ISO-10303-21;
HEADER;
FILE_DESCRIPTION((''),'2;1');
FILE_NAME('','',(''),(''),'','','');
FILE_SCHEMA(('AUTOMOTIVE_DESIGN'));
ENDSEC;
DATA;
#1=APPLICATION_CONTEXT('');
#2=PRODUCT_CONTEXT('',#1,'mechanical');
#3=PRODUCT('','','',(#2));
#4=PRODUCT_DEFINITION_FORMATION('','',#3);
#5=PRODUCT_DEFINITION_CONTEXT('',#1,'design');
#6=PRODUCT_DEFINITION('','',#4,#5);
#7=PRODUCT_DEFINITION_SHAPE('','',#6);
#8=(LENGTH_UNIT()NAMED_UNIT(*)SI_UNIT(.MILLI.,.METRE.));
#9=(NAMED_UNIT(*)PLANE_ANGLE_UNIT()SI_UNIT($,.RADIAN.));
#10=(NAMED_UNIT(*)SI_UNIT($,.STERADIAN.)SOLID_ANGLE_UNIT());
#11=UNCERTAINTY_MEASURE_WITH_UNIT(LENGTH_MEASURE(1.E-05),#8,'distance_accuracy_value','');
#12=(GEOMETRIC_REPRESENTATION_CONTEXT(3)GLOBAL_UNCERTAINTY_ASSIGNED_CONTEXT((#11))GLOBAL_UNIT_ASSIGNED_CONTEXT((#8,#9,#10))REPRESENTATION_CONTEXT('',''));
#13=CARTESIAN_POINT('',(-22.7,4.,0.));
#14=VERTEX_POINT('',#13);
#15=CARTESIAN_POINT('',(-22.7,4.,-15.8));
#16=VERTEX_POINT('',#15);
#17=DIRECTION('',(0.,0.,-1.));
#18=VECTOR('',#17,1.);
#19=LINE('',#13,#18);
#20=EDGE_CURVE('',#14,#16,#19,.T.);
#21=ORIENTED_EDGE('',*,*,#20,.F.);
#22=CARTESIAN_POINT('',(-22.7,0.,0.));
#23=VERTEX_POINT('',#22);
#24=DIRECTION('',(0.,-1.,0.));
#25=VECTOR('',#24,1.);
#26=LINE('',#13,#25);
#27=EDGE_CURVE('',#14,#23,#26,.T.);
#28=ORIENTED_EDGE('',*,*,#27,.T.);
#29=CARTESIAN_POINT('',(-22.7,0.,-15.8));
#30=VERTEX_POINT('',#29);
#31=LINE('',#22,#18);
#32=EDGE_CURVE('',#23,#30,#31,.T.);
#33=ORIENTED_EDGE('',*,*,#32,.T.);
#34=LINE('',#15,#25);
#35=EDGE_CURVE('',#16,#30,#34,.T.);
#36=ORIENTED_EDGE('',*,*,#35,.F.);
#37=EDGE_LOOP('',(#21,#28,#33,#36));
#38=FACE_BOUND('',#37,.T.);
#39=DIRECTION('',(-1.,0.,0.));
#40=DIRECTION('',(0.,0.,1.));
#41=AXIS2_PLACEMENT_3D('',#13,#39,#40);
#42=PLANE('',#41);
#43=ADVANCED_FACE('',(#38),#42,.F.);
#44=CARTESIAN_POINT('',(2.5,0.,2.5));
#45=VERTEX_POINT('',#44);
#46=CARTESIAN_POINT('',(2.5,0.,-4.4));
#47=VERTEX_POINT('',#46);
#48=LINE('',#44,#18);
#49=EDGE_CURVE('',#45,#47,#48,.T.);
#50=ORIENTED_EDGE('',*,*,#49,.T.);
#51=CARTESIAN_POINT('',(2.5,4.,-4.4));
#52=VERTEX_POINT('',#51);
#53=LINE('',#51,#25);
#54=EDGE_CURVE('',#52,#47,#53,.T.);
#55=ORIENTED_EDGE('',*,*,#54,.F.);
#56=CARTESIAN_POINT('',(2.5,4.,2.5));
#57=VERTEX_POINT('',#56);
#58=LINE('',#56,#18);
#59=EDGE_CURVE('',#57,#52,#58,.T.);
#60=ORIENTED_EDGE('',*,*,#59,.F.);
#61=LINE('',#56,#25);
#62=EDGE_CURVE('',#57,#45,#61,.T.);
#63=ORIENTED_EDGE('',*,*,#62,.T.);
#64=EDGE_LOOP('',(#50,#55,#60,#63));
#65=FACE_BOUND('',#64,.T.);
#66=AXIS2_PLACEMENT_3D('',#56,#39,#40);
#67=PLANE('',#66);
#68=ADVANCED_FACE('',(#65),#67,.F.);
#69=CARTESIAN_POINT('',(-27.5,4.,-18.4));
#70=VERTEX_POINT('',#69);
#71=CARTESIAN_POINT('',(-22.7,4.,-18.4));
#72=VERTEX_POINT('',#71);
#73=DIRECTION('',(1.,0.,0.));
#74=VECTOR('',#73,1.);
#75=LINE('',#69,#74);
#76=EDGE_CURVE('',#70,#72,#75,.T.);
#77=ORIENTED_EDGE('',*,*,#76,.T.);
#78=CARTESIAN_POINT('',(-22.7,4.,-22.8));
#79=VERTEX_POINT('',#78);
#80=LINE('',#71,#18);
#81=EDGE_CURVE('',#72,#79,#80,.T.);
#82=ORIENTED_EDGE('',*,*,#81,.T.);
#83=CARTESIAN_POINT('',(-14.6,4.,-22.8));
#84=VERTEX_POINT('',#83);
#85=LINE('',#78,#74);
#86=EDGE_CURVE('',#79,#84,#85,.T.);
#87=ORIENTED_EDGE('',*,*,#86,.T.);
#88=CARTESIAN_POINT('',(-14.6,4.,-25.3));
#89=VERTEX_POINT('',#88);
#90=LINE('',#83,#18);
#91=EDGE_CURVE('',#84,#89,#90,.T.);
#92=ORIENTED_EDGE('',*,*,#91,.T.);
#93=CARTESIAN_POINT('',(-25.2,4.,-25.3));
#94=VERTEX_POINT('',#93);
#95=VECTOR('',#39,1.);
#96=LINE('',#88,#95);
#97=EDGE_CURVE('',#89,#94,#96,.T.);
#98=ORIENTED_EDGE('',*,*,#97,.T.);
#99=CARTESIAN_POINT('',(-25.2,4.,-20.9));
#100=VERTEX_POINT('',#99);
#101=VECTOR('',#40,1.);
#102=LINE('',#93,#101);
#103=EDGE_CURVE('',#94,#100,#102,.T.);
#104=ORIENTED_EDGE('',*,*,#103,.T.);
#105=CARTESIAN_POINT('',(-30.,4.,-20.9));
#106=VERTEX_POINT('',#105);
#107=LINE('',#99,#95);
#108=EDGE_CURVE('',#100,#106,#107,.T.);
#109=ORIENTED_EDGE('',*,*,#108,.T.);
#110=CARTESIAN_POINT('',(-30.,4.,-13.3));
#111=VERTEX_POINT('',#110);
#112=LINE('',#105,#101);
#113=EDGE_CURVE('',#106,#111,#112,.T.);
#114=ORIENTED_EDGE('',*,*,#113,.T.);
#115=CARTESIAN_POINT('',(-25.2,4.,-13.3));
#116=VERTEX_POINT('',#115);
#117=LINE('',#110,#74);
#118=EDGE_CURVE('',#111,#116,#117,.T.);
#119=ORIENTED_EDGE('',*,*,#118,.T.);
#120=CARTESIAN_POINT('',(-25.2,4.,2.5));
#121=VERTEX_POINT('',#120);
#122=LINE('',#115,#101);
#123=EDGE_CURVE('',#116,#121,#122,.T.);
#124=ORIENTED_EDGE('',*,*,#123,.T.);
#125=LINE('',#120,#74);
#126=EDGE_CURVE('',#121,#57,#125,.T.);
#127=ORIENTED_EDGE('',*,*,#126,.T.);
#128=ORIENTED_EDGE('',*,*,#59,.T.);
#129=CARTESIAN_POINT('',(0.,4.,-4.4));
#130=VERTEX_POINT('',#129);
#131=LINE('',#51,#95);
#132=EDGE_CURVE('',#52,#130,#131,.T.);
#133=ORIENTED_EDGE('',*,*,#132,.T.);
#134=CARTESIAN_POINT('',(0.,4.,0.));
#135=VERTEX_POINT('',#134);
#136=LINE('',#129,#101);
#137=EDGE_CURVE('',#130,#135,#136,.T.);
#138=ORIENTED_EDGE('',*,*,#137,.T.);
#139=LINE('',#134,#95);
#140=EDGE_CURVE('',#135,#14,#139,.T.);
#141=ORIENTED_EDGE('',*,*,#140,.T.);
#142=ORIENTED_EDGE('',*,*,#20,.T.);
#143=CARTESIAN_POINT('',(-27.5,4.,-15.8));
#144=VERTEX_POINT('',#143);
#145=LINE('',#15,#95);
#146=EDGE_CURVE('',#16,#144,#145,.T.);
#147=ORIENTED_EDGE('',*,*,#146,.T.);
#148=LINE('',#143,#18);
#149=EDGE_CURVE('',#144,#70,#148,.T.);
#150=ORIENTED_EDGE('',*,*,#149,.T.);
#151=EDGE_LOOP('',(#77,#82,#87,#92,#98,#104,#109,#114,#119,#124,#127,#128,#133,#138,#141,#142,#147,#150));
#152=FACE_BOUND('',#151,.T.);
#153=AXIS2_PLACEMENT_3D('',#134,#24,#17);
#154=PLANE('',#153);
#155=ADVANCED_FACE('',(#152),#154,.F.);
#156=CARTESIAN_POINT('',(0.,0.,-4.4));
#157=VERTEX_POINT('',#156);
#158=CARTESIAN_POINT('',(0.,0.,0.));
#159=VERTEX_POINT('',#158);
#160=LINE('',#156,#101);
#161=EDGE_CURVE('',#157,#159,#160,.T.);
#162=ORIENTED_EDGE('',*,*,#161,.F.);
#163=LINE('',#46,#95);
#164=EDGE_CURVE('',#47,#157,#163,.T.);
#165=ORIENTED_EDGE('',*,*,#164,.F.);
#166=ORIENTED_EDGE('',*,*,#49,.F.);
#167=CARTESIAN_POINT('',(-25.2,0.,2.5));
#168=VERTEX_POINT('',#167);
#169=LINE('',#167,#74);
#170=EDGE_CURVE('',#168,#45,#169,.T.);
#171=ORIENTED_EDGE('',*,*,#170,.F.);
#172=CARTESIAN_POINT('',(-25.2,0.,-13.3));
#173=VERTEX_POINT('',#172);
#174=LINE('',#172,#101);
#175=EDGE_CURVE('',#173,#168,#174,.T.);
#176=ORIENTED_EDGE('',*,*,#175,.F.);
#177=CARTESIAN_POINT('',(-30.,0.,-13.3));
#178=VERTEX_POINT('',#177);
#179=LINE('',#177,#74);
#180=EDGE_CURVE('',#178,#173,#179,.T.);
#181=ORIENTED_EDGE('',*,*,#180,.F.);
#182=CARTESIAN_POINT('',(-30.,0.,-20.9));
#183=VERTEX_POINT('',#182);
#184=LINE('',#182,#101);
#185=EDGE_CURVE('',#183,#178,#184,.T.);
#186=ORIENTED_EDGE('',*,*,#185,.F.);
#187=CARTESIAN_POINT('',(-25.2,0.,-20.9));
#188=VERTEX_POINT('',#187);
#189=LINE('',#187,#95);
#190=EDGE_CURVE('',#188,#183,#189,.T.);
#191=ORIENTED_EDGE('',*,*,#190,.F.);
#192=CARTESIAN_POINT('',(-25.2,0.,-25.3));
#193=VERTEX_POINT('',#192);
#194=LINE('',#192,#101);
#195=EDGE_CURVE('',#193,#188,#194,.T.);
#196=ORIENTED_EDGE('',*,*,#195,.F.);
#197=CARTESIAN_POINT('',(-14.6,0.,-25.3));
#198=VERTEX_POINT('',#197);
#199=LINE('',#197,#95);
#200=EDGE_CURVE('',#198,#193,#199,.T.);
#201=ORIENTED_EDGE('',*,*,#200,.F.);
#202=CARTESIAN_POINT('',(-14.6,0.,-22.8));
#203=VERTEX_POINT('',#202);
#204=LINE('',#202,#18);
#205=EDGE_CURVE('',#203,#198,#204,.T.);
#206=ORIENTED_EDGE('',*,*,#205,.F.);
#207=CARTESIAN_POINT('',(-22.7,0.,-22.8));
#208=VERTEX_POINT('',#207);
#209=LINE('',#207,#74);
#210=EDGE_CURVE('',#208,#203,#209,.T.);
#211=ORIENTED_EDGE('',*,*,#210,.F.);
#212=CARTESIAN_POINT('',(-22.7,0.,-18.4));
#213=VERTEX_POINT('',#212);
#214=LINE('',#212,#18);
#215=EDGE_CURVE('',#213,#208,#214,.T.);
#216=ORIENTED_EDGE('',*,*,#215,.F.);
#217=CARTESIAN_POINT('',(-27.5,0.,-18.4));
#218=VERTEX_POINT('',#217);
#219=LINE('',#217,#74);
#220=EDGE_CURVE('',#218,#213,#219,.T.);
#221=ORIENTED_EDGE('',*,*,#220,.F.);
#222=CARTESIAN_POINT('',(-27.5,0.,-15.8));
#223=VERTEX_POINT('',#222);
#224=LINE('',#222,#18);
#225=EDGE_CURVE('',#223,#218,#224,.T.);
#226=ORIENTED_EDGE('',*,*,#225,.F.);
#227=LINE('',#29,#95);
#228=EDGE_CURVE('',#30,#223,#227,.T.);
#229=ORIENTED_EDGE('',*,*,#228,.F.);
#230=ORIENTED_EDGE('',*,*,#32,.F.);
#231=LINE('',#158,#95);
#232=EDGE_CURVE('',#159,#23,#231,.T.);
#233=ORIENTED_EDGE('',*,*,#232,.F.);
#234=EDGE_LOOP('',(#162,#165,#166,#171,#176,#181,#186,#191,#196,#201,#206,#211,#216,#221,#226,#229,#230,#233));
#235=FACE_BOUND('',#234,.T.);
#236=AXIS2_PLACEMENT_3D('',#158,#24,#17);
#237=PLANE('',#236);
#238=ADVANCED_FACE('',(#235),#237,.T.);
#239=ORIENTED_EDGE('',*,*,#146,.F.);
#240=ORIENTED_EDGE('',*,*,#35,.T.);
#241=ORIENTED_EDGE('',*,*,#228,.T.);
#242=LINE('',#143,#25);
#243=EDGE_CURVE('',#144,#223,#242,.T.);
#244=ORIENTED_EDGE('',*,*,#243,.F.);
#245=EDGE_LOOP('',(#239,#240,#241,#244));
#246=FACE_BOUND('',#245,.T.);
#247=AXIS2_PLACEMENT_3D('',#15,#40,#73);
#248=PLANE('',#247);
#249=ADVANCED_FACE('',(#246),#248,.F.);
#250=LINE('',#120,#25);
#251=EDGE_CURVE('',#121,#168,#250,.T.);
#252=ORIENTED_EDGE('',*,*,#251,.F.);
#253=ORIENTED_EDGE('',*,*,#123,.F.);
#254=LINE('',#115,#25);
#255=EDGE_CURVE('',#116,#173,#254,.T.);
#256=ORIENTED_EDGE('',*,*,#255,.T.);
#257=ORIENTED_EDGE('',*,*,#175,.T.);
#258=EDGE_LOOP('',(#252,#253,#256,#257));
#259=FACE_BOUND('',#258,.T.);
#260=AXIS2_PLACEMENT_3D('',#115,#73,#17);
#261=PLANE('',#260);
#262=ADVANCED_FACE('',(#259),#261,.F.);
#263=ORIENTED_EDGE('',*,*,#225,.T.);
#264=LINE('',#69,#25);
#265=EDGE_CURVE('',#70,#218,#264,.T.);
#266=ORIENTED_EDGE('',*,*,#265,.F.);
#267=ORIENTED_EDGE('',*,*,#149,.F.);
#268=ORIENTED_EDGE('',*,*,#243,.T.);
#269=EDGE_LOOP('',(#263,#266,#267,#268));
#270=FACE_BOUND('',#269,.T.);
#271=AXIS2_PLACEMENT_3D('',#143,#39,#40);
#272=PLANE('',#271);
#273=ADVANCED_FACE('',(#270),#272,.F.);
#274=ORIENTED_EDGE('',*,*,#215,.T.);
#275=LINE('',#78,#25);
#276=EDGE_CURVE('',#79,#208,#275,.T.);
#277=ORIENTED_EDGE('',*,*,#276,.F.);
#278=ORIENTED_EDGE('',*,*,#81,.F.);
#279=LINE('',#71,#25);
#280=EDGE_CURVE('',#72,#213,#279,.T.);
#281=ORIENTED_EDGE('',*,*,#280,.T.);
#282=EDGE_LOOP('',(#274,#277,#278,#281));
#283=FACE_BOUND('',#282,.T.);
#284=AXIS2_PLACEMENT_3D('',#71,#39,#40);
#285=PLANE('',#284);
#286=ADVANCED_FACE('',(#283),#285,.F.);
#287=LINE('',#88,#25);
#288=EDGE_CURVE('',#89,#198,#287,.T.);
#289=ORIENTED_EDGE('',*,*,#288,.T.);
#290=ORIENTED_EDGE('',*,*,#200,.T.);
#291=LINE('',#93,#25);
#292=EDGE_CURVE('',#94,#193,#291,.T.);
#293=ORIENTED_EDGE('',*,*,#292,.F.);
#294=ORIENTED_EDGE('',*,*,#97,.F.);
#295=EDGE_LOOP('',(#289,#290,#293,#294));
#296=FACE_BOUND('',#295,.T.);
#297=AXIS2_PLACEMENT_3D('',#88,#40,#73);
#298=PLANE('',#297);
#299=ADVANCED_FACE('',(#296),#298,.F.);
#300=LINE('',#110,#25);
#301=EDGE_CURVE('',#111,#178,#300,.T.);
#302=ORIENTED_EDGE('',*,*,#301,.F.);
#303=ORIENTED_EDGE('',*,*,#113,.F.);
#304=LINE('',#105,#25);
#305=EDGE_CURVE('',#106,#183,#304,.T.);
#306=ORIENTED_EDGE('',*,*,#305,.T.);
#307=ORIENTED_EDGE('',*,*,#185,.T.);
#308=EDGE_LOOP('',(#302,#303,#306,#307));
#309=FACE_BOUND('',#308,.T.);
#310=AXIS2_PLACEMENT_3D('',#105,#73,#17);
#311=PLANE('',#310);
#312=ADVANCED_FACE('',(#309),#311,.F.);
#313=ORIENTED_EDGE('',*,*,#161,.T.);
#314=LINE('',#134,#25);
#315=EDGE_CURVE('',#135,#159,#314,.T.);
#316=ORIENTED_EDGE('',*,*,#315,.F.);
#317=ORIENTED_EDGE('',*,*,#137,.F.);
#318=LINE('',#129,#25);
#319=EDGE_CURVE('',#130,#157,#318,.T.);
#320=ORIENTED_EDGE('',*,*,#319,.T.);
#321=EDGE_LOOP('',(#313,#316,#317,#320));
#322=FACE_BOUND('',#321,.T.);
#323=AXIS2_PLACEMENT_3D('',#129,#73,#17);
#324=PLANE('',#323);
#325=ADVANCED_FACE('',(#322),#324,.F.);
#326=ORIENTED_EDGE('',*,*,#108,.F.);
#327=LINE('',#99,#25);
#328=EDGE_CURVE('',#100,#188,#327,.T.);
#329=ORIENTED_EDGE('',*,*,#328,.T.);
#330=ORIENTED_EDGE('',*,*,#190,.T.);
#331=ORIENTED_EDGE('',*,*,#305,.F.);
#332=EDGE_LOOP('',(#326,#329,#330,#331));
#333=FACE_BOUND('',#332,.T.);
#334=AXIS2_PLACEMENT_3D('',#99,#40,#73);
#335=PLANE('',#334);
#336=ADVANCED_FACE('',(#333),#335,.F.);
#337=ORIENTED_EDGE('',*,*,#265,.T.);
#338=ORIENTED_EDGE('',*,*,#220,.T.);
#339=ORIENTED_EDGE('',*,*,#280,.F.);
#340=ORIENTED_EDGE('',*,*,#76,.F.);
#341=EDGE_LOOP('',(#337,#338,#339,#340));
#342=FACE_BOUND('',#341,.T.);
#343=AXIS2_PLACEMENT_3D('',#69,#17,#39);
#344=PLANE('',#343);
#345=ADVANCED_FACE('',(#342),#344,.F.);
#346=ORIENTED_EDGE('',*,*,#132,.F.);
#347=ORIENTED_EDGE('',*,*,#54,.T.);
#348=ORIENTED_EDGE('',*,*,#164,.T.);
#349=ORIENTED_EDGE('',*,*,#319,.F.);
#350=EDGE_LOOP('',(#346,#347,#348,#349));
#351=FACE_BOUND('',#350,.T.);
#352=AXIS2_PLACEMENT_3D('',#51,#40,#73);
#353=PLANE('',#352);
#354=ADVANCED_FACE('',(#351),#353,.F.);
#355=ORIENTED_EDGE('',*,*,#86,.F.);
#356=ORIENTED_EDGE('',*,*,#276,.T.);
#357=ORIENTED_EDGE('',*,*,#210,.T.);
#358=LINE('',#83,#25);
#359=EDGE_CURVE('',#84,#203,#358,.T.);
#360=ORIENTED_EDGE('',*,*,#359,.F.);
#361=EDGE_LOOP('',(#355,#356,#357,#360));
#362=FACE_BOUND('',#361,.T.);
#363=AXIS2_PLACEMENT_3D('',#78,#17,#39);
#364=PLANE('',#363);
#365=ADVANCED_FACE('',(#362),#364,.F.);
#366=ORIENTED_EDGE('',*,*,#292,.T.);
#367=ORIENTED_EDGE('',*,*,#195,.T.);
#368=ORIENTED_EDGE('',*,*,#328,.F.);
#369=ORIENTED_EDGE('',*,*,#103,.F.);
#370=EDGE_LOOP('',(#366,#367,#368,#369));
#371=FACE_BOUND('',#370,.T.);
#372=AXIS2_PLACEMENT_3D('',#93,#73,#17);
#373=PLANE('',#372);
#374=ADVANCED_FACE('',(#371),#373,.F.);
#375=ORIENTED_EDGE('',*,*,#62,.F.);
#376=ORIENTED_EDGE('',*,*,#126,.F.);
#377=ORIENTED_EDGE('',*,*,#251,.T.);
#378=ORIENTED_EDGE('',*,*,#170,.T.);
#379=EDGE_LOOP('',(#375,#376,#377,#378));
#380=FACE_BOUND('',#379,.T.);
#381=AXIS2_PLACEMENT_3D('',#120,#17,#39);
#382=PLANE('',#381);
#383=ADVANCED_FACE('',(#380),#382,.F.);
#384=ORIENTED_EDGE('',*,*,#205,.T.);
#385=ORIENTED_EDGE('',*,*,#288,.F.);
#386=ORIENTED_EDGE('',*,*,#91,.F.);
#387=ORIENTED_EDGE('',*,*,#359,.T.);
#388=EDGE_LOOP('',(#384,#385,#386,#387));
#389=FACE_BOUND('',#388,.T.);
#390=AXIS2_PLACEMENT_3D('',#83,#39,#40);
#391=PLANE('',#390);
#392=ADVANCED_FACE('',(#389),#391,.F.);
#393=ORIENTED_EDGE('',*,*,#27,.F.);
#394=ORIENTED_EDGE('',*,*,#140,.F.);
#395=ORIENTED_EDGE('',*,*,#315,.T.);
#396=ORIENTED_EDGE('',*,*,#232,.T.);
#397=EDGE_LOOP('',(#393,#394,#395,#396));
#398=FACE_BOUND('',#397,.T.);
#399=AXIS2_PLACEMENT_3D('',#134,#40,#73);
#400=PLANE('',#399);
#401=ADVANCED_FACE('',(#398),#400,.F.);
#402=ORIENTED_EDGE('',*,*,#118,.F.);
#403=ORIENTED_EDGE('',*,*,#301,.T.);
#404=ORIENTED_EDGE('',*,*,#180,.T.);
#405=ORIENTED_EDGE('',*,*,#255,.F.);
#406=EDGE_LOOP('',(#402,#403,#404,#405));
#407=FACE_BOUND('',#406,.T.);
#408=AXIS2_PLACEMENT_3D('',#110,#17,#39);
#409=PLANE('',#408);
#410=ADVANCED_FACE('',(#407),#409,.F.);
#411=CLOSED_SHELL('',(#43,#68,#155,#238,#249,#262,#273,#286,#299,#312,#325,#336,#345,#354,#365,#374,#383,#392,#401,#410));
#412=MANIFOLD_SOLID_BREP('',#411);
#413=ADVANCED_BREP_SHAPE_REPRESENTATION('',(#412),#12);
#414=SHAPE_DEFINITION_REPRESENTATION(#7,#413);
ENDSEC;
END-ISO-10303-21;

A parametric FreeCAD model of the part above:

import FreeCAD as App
import Part
import Sketcher
from FreeCAD import Vector

doc = App.newDocument("Part")
body = doc.addObject("PartDesign::Body", "Body")

sketch1 = body.newObject("Sketcher::SketchObject", "Sketch")
sketch1.AttachmentSupport = (doc.getObject("XZ_Plane"), [""])
sketch1.MapMode = "FlatFace"
sketch1.addGeometry(Part.LineSegment(Vector(0, 0, 0), Vector(-22.7, 0, 0)), False)
sketch1.addGeometry(Part.LineSegment(Vector(-22.7, 0, 0), Vector(-22.7, -15.8, 0)), False)
sketch1.addGeometry(Part.LineSegment(Vector(-22.7, -15.8, 0), Vector(-27.5, -15.8, 0)), False)
sketch1.addGeometry(Part.LineSegment(Vector(-27.5, -15.8, 0), Vector(-27.5, -18.4, 0)), False)
sketch1.addGeometry(Part.LineSegment(Vector(-27.5, -18.4, 0), Vector(-22.7, -18.4, 0)), False)
sketch1.addGeometry(Part.LineSegment(Vector(-22.7, -18.4, 0), Vector(-22.7, -22.8, 0)), False)
sketch1.addGeometry(Part.LineSegment(Vector(-22.7, -22.8, 0), Vector(-14.6, -22.8, 0)), False)
sketch1.addGeometry(Part.LineSegment(Vector(-14.6, -22.8, 0), Vector(-14.6, -25.3, 0)), False)
sketch1.addGeometry(Part.LineSegment(Vector(-14.6, -25.3, 0), Vector(-25.2, -25.3, 0)), False)
sketch1.addGeometry(Part.LineSegment(Vector(-25.2, -25.3, 0), Vector(-25.2, -20.9, 0)), False)
sketch1.addGeometry(Part.LineSegment(Vector(-25.2, -20.9, 0), Vector(-30, -20.9, 0)), False)
sketch1.addGeometry(Part.LineSegment(Vector(-30, -20.9, 0), Vector(-30, -13.3, 0)), False)
sketch1.addGeometry(Part.LineSegment(Vector(-30, -13.3, 0), Vector(-25.2, -13.3, 0)), False)
sketch1.addGeometry(Part.LineSegment(Vector(-25.2, -13.3, 0), Vector(-25.2, 2.5, 0)), False)
sketch1.addGeometry(Part.LineSegment(Vector(-25.2, 2.5, 0), Vector(2.5, 2.5, 0)), False)
sketch1.addGeometry(Part.LineSegment(Vector(2.5, 2.5, 0), Vector(2.5, -4.4, 0)), False)
sketch1.addGeometry(Part.LineSegment(Vector(2.5, -4.4, 0), Vector(0, -4.4, 0)), False)
sketch1.addGeometry(Part.LineSegment(Vector(0, -4.4, 0), Vector(0, 0, 0)), False)
sketch1.addConstraint(Sketcher.Constraint("Coincident", 0, 2, 1, 1))
sketch1.addConstraint(Sketcher.Constraint("Coincident", 1, 2, 2, 1))
sketch1.addConstraint(Sketcher.Constraint("Coincident", 2, 2, 3, 1))
sketch1.addConstraint(Sketcher.Constraint("Coincident", 3, 2, 4, 1))
sketch1.addConstraint(Sketcher.Constraint("Coincident", 4, 2, 5, 1))
sketch1.addConstraint(Sketcher.Constraint("Coincident", 5, 2, 6, 1))
sketch1.addConstraint(Sketcher.Constraint("Coincident", 6, 2, 7, 1))
sketch1.addConstraint(Sketcher.Constraint("Coincident", 7, 2, 8, 1))
sketch1.addConstraint(Sketcher.Constraint("Coincident", 8, 2, 9, 1))
sketch1.addConstraint(Sketcher.Constraint("Coincident", 9, 2, 10, 1))
sketch1.addConstraint(Sketcher.Constraint("Coincident", 10, 2, 11, 1))
sketch1.addConstraint(Sketcher.Constraint("Coincident", 11, 2, 12, 1))
sketch1.addConstraint(Sketcher.Constraint("Coincident", 12, 2, 13, 1))
sketch1.addConstraint(Sketcher.Constraint("Coincident", 13, 2, 14, 1))
sketch1.addConstraint(Sketcher.Constraint("Coincident", 14, 2, 15, 1))
sketch1.addConstraint(Sketcher.Constraint("Coincident", 15, 2, 16, 1))
sketch1.addConstraint(Sketcher.Constraint("Coincident", 16, 2, 17, 1))
sketch1.addConstraint(Sketcher.Constraint("Coincident", 17, 2, 0, 1))
sketch1.addConstraint(Sketcher.Constraint("Horizontal", 0))
sketch1.addConstraint(Sketcher.Constraint("Vertical", 1))
sketch1.addConstraint(Sketcher.Constraint("Horizontal", 2))
sketch1.addConstraint(Sketcher.Constraint("Vertical", 3))
sketch1.addConstraint(Sketcher.Constraint("Horizontal", 4))
sketch1.addConstraint(Sketcher.Constraint("Vertical", 5))
sketch1.addConstraint(Sketcher.Constraint("Horizontal", 6))
sketch1.addConstraint(Sketcher.Constraint("Vertical", 7))
sketch1.addConstraint(Sketcher.Constraint("Horizontal", 8))
sketch1.addConstraint(Sketcher.Constraint("Vertical", 9))
sketch1.addConstraint(Sketcher.Constraint("Horizontal", 10))
sketch1.addConstraint(Sketcher.Constraint("Vertical", 11))
sketch1.addConstraint(Sketcher.Constraint("Horizontal", 12))
sketch1.addConstraint(Sketcher.Constraint("Vertical", 13))
sketch1.addConstraint(Sketcher.Constraint("Horizontal", 14))
sketch1.addConstraint(Sketcher.Constraint("Vertical", 15))
sketch1.addConstraint(Sketcher.Constraint("Horizontal", 16))
sketch1.addConstraint(Sketcher.Constraint("Vertical", 17))
sketch1.addConstraint(Sketcher.Constraint("Coincident", 17, 2, -1, 1))
sketch1.addConstraint(Sketcher.Constraint("Vertical", 1, 2, 4, 2))
sketch1.addConstraint(Sketcher.Constraint("Vertical", 9, 2, 12, 2))
sketch1.addConstraint(Sketcher.Constraint("Equal", 4, 10))
sketch1.addConstraint(Sketcher.Constraint("Equal", 16, 7))
sketch1.addConstraint(Sketcher.Constraint("Equal", 5, 9))
sketch1.addConstraint(Sketcher.Constraint("Equal", 1, 13))
sketch1.addConstraint(Sketcher.Constraint("Equal", 9, 17))
sketch1.addConstraint(Sketcher.Constraint("DistanceX", 0, 2, 0, 1, 22.7))
sketch1.addConstraint(Sketcher.Constraint("DistanceX", 2, 2, 2, 1, 4.8))
sketch1.addConstraint(Sketcher.Constraint("DistanceX", 6, 1, 6, 2, 8.1))
sketch1.addConstraint(Sketcher.Constraint("DistanceX", 8, 2, 8, 1, 10.6))
sketch1.addConstraint(Sketcher.Constraint("DistanceX", 14, 1, 14, 2, 27.7))
sketch1.addConstraint(Sketcher.Constraint("DistanceY", 1, 2, 1, 1, 15.8))
sketch1.addConstraint(Sketcher.Constraint("DistanceY", 3, 2, 3, 1, 2.6))
sketch1.addConstraint(Sketcher.Constraint("DistanceY", 5, 2, 5, 1, 4.4))
sketch1.addConstraint(Sketcher.Constraint("DistanceY", 11, 1, 11, 2, 7.6))
pad1 = body.newObject("PartDesign::Pad", "Pad")
pad1.Profile = sketch1
pad1.Length = 4
pad1.Reversed = True

doc.recompute()
